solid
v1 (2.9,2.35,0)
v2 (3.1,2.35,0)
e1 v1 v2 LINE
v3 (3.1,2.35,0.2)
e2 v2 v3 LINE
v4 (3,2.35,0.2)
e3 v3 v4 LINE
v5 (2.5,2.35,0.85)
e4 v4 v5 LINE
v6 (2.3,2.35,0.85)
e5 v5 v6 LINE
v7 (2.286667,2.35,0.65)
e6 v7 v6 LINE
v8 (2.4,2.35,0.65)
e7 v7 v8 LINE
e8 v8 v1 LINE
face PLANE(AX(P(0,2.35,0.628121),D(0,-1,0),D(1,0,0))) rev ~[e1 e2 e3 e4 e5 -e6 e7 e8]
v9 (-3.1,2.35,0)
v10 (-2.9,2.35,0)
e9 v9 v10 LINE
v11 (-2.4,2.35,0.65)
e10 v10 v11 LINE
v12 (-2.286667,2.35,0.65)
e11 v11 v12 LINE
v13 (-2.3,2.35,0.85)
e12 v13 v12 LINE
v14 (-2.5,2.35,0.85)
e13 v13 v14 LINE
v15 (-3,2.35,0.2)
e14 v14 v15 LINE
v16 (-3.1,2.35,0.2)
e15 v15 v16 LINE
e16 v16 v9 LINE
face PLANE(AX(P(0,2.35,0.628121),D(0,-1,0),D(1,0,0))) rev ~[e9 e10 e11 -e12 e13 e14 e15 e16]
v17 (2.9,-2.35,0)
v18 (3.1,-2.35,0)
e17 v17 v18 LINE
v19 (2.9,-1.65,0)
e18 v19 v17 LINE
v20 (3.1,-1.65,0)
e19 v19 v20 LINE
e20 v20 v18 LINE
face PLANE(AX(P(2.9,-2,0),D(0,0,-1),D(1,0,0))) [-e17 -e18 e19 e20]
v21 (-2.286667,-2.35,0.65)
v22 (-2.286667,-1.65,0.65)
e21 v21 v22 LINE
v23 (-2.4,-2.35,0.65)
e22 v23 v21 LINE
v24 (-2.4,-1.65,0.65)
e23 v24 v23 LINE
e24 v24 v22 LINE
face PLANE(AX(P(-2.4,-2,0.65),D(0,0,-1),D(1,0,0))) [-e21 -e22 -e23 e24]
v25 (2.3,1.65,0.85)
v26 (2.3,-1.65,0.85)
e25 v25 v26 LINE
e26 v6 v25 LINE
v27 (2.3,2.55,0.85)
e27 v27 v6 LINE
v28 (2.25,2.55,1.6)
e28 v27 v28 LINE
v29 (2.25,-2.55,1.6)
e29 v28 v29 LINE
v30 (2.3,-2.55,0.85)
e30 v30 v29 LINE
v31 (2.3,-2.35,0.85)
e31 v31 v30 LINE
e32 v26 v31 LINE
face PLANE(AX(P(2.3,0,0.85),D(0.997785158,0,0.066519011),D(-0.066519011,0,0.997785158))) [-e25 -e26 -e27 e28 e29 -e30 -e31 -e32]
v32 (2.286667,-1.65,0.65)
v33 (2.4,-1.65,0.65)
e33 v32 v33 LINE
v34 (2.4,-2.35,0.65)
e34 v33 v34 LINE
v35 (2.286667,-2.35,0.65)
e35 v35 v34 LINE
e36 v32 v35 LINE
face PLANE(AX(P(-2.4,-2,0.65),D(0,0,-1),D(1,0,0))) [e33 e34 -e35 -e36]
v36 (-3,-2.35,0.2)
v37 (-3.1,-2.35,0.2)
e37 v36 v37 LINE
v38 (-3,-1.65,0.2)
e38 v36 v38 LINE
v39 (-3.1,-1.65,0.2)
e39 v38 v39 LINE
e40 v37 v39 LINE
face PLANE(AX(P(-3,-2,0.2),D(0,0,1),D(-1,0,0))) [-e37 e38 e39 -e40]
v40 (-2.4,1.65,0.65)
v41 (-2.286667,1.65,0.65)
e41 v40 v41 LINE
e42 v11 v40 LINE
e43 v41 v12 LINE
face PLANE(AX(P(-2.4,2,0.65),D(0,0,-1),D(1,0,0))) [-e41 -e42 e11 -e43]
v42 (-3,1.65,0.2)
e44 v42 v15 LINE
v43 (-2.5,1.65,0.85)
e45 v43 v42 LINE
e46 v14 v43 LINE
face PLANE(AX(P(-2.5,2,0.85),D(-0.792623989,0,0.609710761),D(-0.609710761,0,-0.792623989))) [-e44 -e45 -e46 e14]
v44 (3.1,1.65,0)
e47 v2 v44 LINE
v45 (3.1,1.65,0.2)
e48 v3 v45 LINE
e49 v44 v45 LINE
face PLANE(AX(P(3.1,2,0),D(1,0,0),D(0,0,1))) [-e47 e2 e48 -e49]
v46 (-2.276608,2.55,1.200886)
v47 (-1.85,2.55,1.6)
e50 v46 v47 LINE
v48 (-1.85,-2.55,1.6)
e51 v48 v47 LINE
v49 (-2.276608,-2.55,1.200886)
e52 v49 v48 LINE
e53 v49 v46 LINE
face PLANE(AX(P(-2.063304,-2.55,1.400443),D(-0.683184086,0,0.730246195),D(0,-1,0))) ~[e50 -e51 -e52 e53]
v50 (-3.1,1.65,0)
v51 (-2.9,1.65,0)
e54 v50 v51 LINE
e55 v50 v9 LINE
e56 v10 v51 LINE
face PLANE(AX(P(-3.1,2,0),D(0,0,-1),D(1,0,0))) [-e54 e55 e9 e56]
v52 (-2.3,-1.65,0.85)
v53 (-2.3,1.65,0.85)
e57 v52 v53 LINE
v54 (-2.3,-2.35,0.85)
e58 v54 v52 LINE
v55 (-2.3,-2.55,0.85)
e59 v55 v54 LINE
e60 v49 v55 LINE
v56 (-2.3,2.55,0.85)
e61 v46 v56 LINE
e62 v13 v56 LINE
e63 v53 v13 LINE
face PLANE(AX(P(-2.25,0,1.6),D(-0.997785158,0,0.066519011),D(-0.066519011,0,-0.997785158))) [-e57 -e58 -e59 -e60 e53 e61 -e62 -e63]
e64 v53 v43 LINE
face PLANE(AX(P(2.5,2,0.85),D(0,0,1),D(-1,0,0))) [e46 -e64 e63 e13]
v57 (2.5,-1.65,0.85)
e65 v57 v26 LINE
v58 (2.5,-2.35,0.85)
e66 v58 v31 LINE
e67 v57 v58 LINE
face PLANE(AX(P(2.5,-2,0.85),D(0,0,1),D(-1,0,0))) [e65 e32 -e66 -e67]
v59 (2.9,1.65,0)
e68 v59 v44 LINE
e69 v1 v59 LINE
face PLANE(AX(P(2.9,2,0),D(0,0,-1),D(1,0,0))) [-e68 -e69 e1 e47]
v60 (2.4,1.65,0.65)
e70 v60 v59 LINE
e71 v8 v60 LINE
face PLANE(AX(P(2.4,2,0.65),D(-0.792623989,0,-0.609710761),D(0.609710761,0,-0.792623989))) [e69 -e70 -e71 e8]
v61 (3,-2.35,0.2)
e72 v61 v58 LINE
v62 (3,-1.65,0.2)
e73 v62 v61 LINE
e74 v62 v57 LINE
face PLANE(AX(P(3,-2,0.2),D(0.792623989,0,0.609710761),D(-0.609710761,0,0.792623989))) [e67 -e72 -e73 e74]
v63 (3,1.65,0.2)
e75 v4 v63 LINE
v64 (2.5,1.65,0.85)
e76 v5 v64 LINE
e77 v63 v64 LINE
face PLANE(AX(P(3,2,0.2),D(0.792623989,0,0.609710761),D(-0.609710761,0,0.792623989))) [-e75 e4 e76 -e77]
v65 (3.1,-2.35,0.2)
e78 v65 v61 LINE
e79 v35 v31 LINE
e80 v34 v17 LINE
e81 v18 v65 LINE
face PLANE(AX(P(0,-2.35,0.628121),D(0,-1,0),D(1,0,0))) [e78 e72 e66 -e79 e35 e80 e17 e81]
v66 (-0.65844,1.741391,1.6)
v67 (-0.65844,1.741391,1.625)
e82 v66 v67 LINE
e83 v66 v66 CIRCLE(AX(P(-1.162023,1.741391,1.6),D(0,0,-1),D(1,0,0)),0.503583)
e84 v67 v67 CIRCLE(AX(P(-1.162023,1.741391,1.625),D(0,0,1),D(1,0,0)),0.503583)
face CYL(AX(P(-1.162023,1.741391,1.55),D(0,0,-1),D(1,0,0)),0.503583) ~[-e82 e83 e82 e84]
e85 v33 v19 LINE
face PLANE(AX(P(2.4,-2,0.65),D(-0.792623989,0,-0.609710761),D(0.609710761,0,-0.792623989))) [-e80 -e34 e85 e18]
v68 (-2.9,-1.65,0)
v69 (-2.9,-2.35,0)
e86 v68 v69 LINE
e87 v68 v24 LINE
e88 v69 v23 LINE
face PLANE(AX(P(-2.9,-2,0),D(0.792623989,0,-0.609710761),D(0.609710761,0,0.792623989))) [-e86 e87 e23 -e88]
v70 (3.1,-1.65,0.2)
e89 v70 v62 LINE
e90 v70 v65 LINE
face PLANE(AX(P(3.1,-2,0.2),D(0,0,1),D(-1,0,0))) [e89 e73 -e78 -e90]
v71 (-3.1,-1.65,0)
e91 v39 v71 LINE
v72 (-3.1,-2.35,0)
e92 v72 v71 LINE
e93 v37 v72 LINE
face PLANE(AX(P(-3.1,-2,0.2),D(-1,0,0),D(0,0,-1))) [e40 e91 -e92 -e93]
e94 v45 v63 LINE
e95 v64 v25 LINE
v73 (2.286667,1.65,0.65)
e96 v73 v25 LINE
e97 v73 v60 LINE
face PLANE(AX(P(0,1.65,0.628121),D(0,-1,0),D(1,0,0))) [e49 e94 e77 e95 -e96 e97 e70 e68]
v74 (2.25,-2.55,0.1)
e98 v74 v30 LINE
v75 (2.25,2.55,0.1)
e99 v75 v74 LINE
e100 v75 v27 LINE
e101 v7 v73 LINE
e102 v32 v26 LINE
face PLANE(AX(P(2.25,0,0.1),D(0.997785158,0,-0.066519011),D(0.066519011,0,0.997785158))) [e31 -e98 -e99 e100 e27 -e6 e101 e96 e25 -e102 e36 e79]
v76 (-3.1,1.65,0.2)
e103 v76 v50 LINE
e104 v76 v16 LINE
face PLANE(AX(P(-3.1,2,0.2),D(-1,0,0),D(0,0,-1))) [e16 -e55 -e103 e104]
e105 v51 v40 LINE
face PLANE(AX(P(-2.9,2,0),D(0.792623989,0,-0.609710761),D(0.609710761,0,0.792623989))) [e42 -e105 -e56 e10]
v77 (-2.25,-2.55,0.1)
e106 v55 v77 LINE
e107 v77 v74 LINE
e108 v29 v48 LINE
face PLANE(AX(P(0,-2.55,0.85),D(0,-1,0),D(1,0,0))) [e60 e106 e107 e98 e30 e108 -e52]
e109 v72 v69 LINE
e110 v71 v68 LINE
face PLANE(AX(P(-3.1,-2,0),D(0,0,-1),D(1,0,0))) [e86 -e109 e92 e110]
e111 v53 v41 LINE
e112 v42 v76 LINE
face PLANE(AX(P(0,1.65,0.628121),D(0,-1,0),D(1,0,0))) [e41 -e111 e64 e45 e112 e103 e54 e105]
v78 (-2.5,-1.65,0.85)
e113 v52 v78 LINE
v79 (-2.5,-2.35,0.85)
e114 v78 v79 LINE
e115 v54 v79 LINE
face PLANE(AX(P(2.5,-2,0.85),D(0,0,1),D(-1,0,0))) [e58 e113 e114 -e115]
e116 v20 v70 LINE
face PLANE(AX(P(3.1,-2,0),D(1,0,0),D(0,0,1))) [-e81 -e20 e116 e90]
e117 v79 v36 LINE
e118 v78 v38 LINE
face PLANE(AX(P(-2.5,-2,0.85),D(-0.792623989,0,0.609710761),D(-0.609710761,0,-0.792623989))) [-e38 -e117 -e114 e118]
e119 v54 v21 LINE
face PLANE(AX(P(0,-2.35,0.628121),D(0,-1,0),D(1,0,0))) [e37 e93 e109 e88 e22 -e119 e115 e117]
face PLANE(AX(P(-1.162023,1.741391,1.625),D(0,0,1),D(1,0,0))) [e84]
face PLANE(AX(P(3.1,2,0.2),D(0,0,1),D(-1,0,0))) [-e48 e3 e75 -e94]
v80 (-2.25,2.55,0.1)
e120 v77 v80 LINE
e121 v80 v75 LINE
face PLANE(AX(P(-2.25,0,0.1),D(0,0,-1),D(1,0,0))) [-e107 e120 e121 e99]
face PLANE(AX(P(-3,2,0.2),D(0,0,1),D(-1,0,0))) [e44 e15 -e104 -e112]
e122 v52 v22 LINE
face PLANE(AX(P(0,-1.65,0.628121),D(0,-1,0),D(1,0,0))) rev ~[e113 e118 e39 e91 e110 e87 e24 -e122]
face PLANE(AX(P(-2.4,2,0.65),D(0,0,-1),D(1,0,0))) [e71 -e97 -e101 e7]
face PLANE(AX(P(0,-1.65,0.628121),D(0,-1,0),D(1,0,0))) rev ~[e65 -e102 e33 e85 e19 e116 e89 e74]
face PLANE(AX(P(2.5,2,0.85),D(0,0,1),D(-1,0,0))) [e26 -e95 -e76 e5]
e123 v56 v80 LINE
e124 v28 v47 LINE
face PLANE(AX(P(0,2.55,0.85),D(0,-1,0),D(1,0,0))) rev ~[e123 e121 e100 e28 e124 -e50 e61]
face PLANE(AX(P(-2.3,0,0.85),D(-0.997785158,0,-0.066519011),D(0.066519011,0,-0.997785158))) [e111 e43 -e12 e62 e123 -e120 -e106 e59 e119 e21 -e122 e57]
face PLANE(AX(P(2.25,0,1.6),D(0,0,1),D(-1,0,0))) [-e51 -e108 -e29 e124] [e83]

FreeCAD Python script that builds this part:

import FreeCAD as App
import Part
import Sketcher
from FreeCAD import Vector
Q = App.Units.Quantity


def edges_at(feature, points):
    """Names of the edges that pass closest to the given points."""
    edges = feature.Shape.Edges
    near = lambda p: min(range(len(edges)), key=lambda i: edges[i].distToShape(Part.Vertex(*p))[0])
    return sorted({f"Edge{near(p) + 1}" for p in points})


def add_polygon(sketch, points):
    """Adds a closed chain of lines whose ends are joined by coincident constraints."""
    first, n = sketch.GeometryCount, len(points)
    for a, b in zip(points, points[1:] + points[:1]):
        sketch.addGeometry(Part.LineSegment(App.Vector(*a, 0), App.Vector(*b, 0)), False)
    for i in range(n):
        sketch.addConstraint(Sketcher.Constraint("Coincident", first + i, 2, first + (i + 1) % n, 1))

doc = App.newDocument("Part")
body = doc.addObject("PartDesign::Body", "Body")

# Sketch on XZ plane
sketch1 = body.newObject("Sketcher::SketchObject", "Sketch")
sketch1.AttachmentSupport = (doc.getObject("XZ_Plane"), [""])
sketch1.MapMode = "FlatFace"
sketch1.AttachmentOffset = App.Placement(Vector(0, 0, -2), App.Rotation())
add_polygon(sketch1, [(-3.1, 0), (-2.9, 0), (-2.4, 0.65), (2.4, 0.65), (2.9, 0), (3.1, 0), (3.1, 0.2), (3, 0.2), (2.5, 0.85), (-2.5, 0.85), (-3, 0.2), (-3.1, 0.2)])  # lines 0-11
sketch1.addConstraint([
    Sketcher.Constraint("Horizontal", 0),
    Sketcher.Constraint("Horizontal", 2),
    Sketcher.Constraint("Horizontal", 4),
    Sketcher.Constraint("Vertical", 5),
    Sketcher.Constraint("Horizontal", 6),
    Sketcher.Constraint("Horizontal", 8),
    Sketcher.Constraint("Horizontal", 10),
    Sketcher.Constraint("Vertical", 11),
    Sketcher.Constraint("Symmetric", 0, 2, 3, 2, -1, 1),
    Sketcher.Constraint("Symmetric", 6, 2, 9, 2, -2),
    Sketcher.Constraint("Symmetric", 4, 2, 11, 2, -2),
    Sketcher.Constraint("Parallel", 3, 7),
    Sketcher.Constraint("Parallel", 1, 9),
    Sketcher.Constraint("Equal", 4, 5),
    Sketcher.Constraint("Equal", 1, 3),
    Sketcher.Constraint("Equal", 3, 7),
    Sketcher.Constraint("DistanceX", 8, 2, 8, 1, Q("5 mm")),
    Sketcher.Constraint("DistanceX", 0, 1, 0, 2, Q("0.2 mm")),
    Sketcher.Constraint("DistanceX", 2, 1, 2, 2, Q("4.8 mm")),
    Sketcher.Constraint("DistanceX", -1, 1, 6, 2, Q("3 mm")),
    Sketcher.Constraint("DistanceY", -1, 1, 1, 2, Q("0.65 mm")),
])
pad1 = body.newObject("PartDesign::Pad", "Pad")
pad1.Profile = sketch1
pad1.Length = 0.7
pad1.Midplane = True
body2 = doc.addObject("PartDesign::Body", "Body001")

# Sketch on XZ plane
sketch2 = body2.newObject("Sketcher::SketchObject", "Sketch001")
sketch2.AttachmentSupport = (doc.getObject("XZ_Plane001"), [""])
sketch2.MapMode = "FlatFace"
add_polygon(sketch2, [(-2.25, 0.1), (2.25, 0.1), (2.3, 0.85), (2.25, 1.6), (-2.25, 1.6), (-2.3, 0.85)])  # lines 0-5
sketch2.addConstraint([
    Sketcher.Constraint("Horizontal", 0),
    Sketcher.Constraint("Horizontal", 3),
    Sketcher.Constraint("Symmetric", 1, 2, 4, 2, -2),
    Sketcher.Constraint("Parallel", 1, 4),
    Sketcher.Constraint("Parallel", 2, 5),
    Sketcher.Constraint("Vertical", 0, 2, 2, 2),
    Sketcher.Constraint("Vertical", 3, 2, 5, 2),
    Sketcher.Constraint("DistanceX", 0, 1, 0, 2, Q("4.5 mm")),
    Sketcher.Constraint("DistanceY", -1, 1, 0, 2, Q("0.1 mm")),
    Sketcher.Constraint("DistanceX", -1, 1, 1, 2, Q("2.3 mm")),
    Sketcher.Constraint("DistanceY", -1, 1, 2, 2, Q("1.6 mm")),
])
pad2 = body2.newObject("PartDesign::Pad", "Pad001")
pad2.Profile = sketch2
pad2.Length = 5.1
pad2.Midplane = True
doc.recompute()

chamfer = body2.newObject("PartDesign::Chamfer", "Chamfer")
chamfer.Base = (pad2, edges_at(pad2, [(-2.25, 0, 1.6)]))
chamfer.Size = 0.4
body3 = doc.addObject("PartDesign::Body", "Body002")

# Sketch on XY plane
sketch3 = body3.newObject("Sketcher::SketchObject", "Sketch002")
sketch3.AttachmentSupport = (doc.getObject("XY_Plane002"), [""])
sketch3.MapMode = "FlatFace"
sketch3.AttachmentOffset = App.Placement(Vector(0, 0, 1.55), App.Rotation())
sketch3.addGeometry(Part.Circle(Vector(-1.162023, 1.741391, 0), Vector(0, 0, 1), 0.503583), False)
sketch3.addConstraint([
    Sketcher.Constraint("Diameter", 0, Q("1.007166 mm")),
    Sketcher.Constraint("DistanceY", -1, 1, 0, 3, Q("1.741391 mm")),
    Sketcher.Constraint("DistanceX", 0, 3, -1, 1, Q("1.162023 mm")),
])
pad3 = body3.newObject("PartDesign::Pad", "Pad002")
pad3.Profile = sketch3
pad3.Length = 0.075
body4 = doc.addObject("PartDesign::Body", "Body003")
body4.AllowCompound = True

# Sketch on XZ plane
sketch4 = body4.newObject("Sketcher::SketchObject", "Sketch003")
sketch4.AttachmentSupport = (doc.getObject("XZ_Plane003"), [""])
sketch4.MapMode = "FlatFace"
sketch4.AttachmentOffset = App.Placement(Vector(0, 0, 2), App.Rotation())
add_polygon(sketch4, [(-3.1, 0), (-2.9, 0), (-2.4, 0.65), (2.4, 0.65), (2.9, 0), (3.1, 0), (3.1, 0.2), (3, 0.2), (2.5, 0.85), (-2.5, 0.85), (-3, 0.2), (-3.1, 0.2)])  # lines 0-11
sketch4.addConstraint([
    Sketcher.Constraint("Horizontal", 0),
    Sketcher.Constraint("Horizontal", 2),
    Sketcher.Constraint("Horizontal", 4),
    Sketcher.Constraint("Vertical", 5),
    Sketcher.Constraint("Horizontal", 6),
    Sketcher.Constraint("Horizontal", 8),
    Sketcher.Constraint("Horizontal", 10),
    Sketcher.Constraint("Vertical", 11),
    Sketcher.Constraint("Symmetric", 0, 2, 3, 2, -1, 1),
    Sketcher.Constraint("Symmetric", 6, 2, 9, 2, -2),
    Sketcher.Constraint("Symmetric", 4, 2, 11, 2, -2),
    Sketcher.Constraint("Parallel", 3, 7),
    Sketcher.Constraint("Parallel", 1, 9),
    Sketcher.Constraint("Equal", 4, 5),
    Sketcher.Constraint("Equal", 1, 3),
    Sketcher.Constraint("Equal", 3, 7),
    Sketcher.Constraint("DistanceX", 8, 2, 8, 1, Q("5 mm")),
    Sketcher.Constraint("DistanceX", 0, 1, 0, 2, Q("0.2 mm")),
    Sketcher.Constraint("DistanceX", 2, 1, 2, 2, Q("4.8 mm")),
    Sketcher.Constraint("DistanceX", -1, 1, 6, 2, Q("3 mm")),
    Sketcher.Constraint("DistanceY", -1, 1, 1, 2, Q("0.65 mm")),
])
pad4 = body4.newObject("PartDesign::Pad", "Pad003")
pad4.Profile = sketch4
pad4.Length = 0.7
pad4.Midplane = True
doc.recompute()

boolean = body4.newObject("PartDesign::Boolean", "Boolean")
boolean.Type = "Fuse"
boolean.addObjects([body])
doc.recompute()

boolean2 = body4.newObject("PartDesign::Boolean", "Boolean001")
boolean2.Type = "Fuse"
boolean2.addObjects([body2])
doc.recompute()

boolean3 = body4.newObject("PartDesign::Boolean", "Boolean002")
boolean3.Type = "Fuse"
boolean3.addObjects([body3])

doc.recompute()
